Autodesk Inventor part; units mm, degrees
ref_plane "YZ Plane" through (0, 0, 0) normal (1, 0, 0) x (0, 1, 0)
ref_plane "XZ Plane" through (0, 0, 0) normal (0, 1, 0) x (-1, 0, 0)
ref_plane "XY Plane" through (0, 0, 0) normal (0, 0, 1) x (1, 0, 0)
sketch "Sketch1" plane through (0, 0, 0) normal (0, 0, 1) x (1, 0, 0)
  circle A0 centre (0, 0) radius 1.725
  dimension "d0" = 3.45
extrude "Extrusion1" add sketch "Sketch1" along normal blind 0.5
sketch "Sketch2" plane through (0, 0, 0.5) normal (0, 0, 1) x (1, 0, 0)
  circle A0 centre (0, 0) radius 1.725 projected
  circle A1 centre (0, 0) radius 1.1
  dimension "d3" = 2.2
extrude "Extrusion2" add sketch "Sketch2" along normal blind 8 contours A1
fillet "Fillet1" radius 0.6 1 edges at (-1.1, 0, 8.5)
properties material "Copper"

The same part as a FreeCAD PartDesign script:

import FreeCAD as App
import Part
import Sketcher


def edges_at(feature, points):
    """Names of the edges that pass closest to the given points."""
    edges = feature.Shape.Edges
    near = lambda p: min(range(len(edges)), key=lambda i: edges[i].distToShape(Part.Vertex(*p))[0])
    return sorted({f"Edge{near(p) + 1}" for p in points})

doc = App.newDocument("Part")
body = doc.addObject("PartDesign::Body", "Body")

# Sketch on XY plane
sketch1 = body.newObject("Sketcher::SketchObject", "Sketch")
sketch1.AttachmentSupport = (doc.getObject("XY_Plane"), [""])
sketch1.MapMode = "FlatFace"
sketch1.addGeometry(Part.Circle(App.Vector(0, 0, 0), App.Vector(0, 0, 1), 1.7), False)
sketch1.addConstraint(Sketcher.Constraint("Coincident", 0, 3, -1, 1))
sketch1.addConstraint(Sketcher.Constraint("Diameter", 0, 3.45))
pad1 = body.newObject("PartDesign::Pad", "Pad")
pad1.Profile = sketch1
pad1.Length = 0.5

# Sketch on XY plane
sketch2 = body.newObject("Sketcher::SketchObject", "Sketch001")
sketch2.AttachmentSupport = (doc.getObject("XY_Plane"), [""])
sketch2.MapMode = "FlatFace"
sketch2.AttachmentOffset = App.Placement(App.Vector(0, 0, 0.5), App.Rotation())
sketch2.addGeometry(Part.Circle(App.Vector(0, 0, 0), App.Vector(0, 0, 1), 1.1), False)
sketch2.addConstraint(Sketcher.Constraint("Coincident", 0, 3, -1, 1))
sketch2.addConstraint(Sketcher.Constraint("Diameter", 0, 2.2))
pad2 = body.newObject("PartDesign::Pad", "Pad001")
pad2.Profile = sketch2
pad2.Length = 8
doc.recompute()

fillet = body.newObject("PartDesign::Fillet", "Fillet")
fillet.Base = (pad2, edges_at(pad2, [(-1.1, 0, 8.5)]))
fillet.Radius = 0.6

doc.recompute()
